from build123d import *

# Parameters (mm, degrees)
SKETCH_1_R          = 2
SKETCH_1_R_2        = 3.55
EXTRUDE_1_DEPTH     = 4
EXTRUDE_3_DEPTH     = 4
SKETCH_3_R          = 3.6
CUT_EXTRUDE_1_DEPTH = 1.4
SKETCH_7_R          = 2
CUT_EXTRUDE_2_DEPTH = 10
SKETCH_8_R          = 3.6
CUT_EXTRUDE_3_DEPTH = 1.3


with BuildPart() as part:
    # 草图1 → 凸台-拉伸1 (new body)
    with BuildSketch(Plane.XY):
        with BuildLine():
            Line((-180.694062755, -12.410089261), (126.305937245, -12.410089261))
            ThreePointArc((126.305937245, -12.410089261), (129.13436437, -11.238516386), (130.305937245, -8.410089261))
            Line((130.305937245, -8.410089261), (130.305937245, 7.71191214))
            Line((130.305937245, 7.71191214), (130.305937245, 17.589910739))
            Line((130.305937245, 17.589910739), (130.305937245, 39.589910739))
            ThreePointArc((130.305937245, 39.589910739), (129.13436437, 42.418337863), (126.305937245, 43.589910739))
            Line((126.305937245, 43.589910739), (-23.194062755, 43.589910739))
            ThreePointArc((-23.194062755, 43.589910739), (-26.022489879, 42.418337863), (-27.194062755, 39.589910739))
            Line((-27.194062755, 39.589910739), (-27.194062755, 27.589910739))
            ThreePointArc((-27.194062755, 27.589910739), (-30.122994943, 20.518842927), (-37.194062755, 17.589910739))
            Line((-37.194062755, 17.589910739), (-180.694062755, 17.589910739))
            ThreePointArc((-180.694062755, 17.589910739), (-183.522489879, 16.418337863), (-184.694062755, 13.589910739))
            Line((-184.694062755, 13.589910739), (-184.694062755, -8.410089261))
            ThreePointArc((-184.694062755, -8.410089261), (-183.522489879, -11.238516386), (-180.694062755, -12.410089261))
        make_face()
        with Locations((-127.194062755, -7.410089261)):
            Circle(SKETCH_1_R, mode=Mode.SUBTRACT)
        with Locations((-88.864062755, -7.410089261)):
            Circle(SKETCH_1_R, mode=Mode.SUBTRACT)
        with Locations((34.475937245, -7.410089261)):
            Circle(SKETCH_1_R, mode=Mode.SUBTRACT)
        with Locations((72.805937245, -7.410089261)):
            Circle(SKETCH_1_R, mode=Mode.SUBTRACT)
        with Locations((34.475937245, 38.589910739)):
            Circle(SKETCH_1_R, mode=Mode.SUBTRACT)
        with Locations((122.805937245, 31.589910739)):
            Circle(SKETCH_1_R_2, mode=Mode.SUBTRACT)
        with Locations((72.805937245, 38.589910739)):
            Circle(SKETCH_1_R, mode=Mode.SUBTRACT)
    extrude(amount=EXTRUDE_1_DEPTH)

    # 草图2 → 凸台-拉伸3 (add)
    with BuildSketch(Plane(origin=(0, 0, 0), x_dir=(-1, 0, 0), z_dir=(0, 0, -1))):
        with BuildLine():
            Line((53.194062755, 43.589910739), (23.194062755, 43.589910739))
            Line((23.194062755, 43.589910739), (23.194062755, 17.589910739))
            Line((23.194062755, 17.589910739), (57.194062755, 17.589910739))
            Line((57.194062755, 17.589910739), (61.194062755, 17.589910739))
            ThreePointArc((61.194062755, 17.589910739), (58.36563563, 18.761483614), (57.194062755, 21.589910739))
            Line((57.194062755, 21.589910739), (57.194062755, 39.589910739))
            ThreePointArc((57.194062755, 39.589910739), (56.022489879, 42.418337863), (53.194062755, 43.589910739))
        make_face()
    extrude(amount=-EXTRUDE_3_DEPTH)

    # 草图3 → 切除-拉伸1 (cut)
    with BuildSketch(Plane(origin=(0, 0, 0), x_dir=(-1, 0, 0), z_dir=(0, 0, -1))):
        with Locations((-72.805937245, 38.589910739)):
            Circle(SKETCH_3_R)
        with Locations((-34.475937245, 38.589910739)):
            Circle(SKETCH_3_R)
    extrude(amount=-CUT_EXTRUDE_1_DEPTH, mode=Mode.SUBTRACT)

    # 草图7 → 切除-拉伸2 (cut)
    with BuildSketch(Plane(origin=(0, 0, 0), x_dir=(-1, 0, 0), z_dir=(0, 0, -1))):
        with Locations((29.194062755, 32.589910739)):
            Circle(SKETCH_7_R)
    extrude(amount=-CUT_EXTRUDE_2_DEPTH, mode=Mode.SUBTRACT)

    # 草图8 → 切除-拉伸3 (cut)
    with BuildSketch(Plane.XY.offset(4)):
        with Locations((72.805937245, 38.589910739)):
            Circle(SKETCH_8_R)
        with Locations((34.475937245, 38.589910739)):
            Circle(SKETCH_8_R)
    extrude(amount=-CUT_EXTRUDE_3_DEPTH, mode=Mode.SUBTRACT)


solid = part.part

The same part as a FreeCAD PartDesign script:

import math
import FreeCAD as App
import Part
import Sketcher
Q = App.Units.Quantity

doc = App.newDocument("Part")
body = doc.addObject("PartDesign::Body", "Body")

# Sketch on XY plane
sketch1 = body.newObject("Sketcher::SketchObject", "Sketch")
sketch1.AttachmentSupport = (doc.getObject("XY_Plane"), [""])
sketch1.MapMode = "FlatFace"
sketch1.addGeometry(Part.LineSegment(App.Vector(-180.694063, -12.410089, 0), App.Vector(126.305937, -12.410089, 0)), False)
sketch1.addGeometry(Part.ArcOfCircle(Part.Circle(App.Vector(126.305937, -8.410089, 0), App.Vector(0, 0, 1), 4), math.radians(-90), math.radians(0)), False)
sketch1.addGeometry(Part.LineSegment(App.Vector(130.305937, -8.410089, 0), App.Vector(130.305937, 39.589911, 0)), False)
sketch1.addGeometry(Part.ArcOfCircle(Part.Circle(App.Vector(126.305937, 39.589911, 0), App.Vector(0, 0, 1), 4), math.radians(0), math.radians(90)), False)
sketch1.addGeometry(Part.LineSegment(App.Vector(126.305937, 43.589911, 0), App.Vector(-23.194063, 43.589911, 0)), False)
sketch1.addGeometry(Part.ArcOfCircle(Part.Circle(App.Vector(-23.194063, 39.589911, 0), App.Vector(0, 0, 1), 4), math.radians(90), math.radians(180)), False)
sketch1.addGeometry(Part.LineSegment(App.Vector(-27.194063, 39.589911, 0), App.Vector(-27.194063, 27.589911, 0)), False)
sketch1.addGeometry(Part.ArcOfCircle(Part.Circle(App.Vector(-37.194063, 27.589911, 0), App.Vector(0, 0, 1), 10), math.radians(-90), math.radians(0)), False)
sketch1.addGeometry(Part.LineSegment(App.Vector(-37.194063, 17.589911, 0), App.Vector(-180.694063, 17.589911, 0)), False)
sketch1.addGeometry(Part.ArcOfCircle(Part.Circle(App.Vector(-180.694063, 13.589911, 0), App.Vector(0, 0, 1), 4), math.radians(90), math.radians(180)), False)
sketch1.addGeometry(Part.LineSegment(App.Vector(-184.694063, 13.589911, 0), App.Vector(-184.694063, -8.410089, 0)), False)
sketch1.addGeometry(Part.ArcOfCircle(Part.Circle(App.Vector(-180.694063, -8.410089, 0), App.Vector(0, 0, 1), 4), math.radians(-180), math.radians(-90)), False)
sketch1.addGeometry(Part.Circle(App.Vector(-127.194063, -7.410089, 0), App.Vector(0, 0, 1), 2), False)
sketch1.addGeometry(Part.Circle(App.Vector(-88.864063, -7.410089, 0), App.Vector(0, 0, 1), 2), False)
sketch1.addGeometry(Part.Circle(App.Vector(34.475937, -7.410089, 0), App.Vector(0, 0, 1), 2), False)
sketch1.addGeometry(Part.Circle(App.Vector(72.805937, -7.410089, 0), App.Vector(0, 0, 1), 2), False)
sketch1.addGeometry(Part.Circle(App.Vector(34.475937, 38.589911, 0), App.Vector(0, 0, 1), 2), False)
sketch1.addGeometry(Part.Circle(App.Vector(122.805937, 31.589911, 0), App.Vector(0, 0, 1), 3.55), False)
sketch1.addGeometry(Part.Circle(App.Vector(72.805937, 38.589911, 0), App.Vector(0, 0, 1), 2), False)
sketch1.addConstraint(Sketcher.Constraint("Tangent", 0, 2, 1, 1))
sketch1.addConstraint(Sketcher.Constraint("Tangent", 1, 2, 2, 1))
sketch1.addConstraint(Sketcher.Constraint("Tangent", 2, 2, 3, 1))
sketch1.addConstraint(Sketcher.Constraint("Tangent", 3, 2, 4, 1))
sketch1.addConstraint(Sketcher.Constraint("Tangent", 4, 2, 5, 1))
sketch1.addConstraint(Sketcher.Constraint("Tangent", 5, 2, 6, 1))
sketch1.addConstraint(Sketcher.Constraint("Tangent", 6, 2, 7, 2))
sketch1.addConstraint(Sketcher.Constraint("Tangent", 7, 1, 8, 1))
sketch1.addConstraint(Sketcher.Constraint("Tangent", 8, 2, 9, 1))
sketch1.addConstraint(Sketcher.Constraint("Tangent", 9, 2, 10, 1))
sketch1.addConstraint(Sketcher.Constraint("Tangent", 10, 2, 11, 1))
sketch1.addConstraint(Sketcher.Constraint("Tangent", 11, 2, 0, 1))
sketch1.addConstraint(Sketcher.Constraint("Horizontal", 0))
sketch1.addConstraint(Sketcher.Constraint("Vertical", 2))
sketch1.addConstraint(Sketcher.Constraint("Horizontal", 4))
sketch1.addConstraint(Sketcher.Constraint("Vertical", 6))
sketch1.addConstraint(Sketcher.Constraint("Horizontal", 8))
sketch1.addConstraint(Sketcher.Constraint("Vertical", 10))
sketch1.addConstraint(Sketcher.Constraint("Equal", 1, 3))
sketch1.addConstraint(Sketcher.Constraint("Equal", 3, 5))
sketch1.addConstraint(Sketcher.Constraint("Equal", 5, 9))
sketch1.addConstraint(Sketcher.Constraint("Equal", 9, 11))
sketch1.addConstraint(Sketcher.Constraint("Equal", 12, 13))
sketch1.addConstraint(Sketcher.Constraint("Equal", 13, 14))
sketch1.addConstraint(Sketcher.Constraint("Equal", 14, 15))
sketch1.addConstraint(Sketcher.Constraint("Equal", 15, 16))
sketch1.addConstraint(Sketcher.Constraint("Equal", 16, 18))
sketch1.addConstraint(Sketcher.Constraint("Horizontal", 12, 3, 13, 3))
sketch1.addConstraint(Sketcher.Constraint("Horizontal", 13, 3, 14, 3))
sketch1.addConstraint(Sketcher.Constraint("Horizontal", 14, 3, 15, 3))
sketch1.addConstraint(Sketcher.Constraint("Horizontal", 16, 3, 18, 3))
sketch1.addConstraint(Sketcher.Constraint("Vertical", 14, 3, 16, 3))
sketch1.addConstraint(Sketcher.Constraint("Vertical", 15, 3, 18, 3))
sketch1.addConstraint(Sketcher.Constraint("Diameter", 12, Q("4 mm")))
sketch1.addConstraint(Sketcher.Constraint("Radius", 1, Q("4 mm")))
sketch1.addConstraint(Sketcher.Constraint("Radius", 7, Q("10 mm")))
sketch1.addConstraint(Sketcher.Constraint("Diameter", 17, Q("7.1 mm")))
sketch1.addConstraint(Sketcher.Constraint("DistanceX", 0, 1, 0, 2, Q("307 mm")))
sketch1.addConstraint(Sketcher.Constraint("DistanceY", 2, 1, 2, 2, Q("48 mm")))
sketch1.addConstraint(Sketcher.Constraint("DistanceY", 6, 2, 6, 1, Q("12 mm")))
sketch1.addConstraint(Sketcher.Constraint("DistanceX", 4, 2, 4, 1, Q("149.5 mm")))
sketch1.addConstraint(Sketcher.Constraint("DistanceY", 11, 3, 12, 3, Q("1 mm")))
sketch1.addConstraint(Sketcher.Constraint("DistanceX", 12, 3, 7, 3, Q("90 mm")))
sketch1.addConstraint(Sketcher.Constraint("DistanceX", 5, 3, 15, 3, Q("96 mm")))
sketch1.addConstraint(Sketcher.Constraint("DistanceY", 14, 3, 16, 3, Q("46 mm")))
sketch1.addConstraint(Sketcher.Constraint("DistanceY", 17, 3, 3, 3, Q("8 mm")))
sketch1.addConstraint(Sketcher.Constraint("DistanceX", 15, 3, 17, 3, Q("50 mm")))
sketch1.addConstraint(Sketcher.Constraint("DistanceX", 12, 3, 13, 3, Q("38.33 mm")))
sketch1.addConstraint(Sketcher.Constraint("DistanceX", 5, 3, 14, 3, Q("57.67 mm")))
sketch1.addConstraint(Sketcher.Constraint("DistanceY", 1, 3, -1, 1, Q("8.410089 mm")))
sketch1.addConstraint(Sketcher.Constraint("DistanceX", -1, 1, 1, 3, Q("126.305937 mm")))
pad1 = body.newObject("PartDesign::Pad", "Pad")
pad1.Profile = sketch1
pad1.Length = 4

# Sketch on XY plane
sketch2 = body.newObject("Sketcher::SketchObject", "Sketch001")
sketch2.AttachmentSupport = (doc.getObject("XY_Plane"), [""])
sketch2.MapMode = "FlatFace"
sketch2.addGeometry(Part.LineSegment(App.Vector(-53.194063, 43.589911, 0), App.Vector(-23.194063, 43.589911, 0)), False)
sketch2.addGeometry(Part.LineSegment(App.Vector(-23.194063, 43.589911, 0), App.Vector(-23.194063, 17.589911, 0)), False)
sketch2.addGeometry(Part.LineSegment(App.Vector(-23.194063, 17.589911, 0), App.Vector(-61.194063, 17.589911, 0)), False)
sketch2.addGeometry(Part.ArcOfCircle(Part.Circle(App.Vector(-61.194063, 21.589911, 0), App.Vector(0, 0, 1), 4), math.radians(-90), math.radians(0)), False)
sketch2.addGeometry(Part.LineSegment(App.Vector(-57.194063, 21.589911, 0), App.Vector(-57.194063, 39.589911, 0)), False)
sketch2.addGeometry(Part.ArcOfCircle(Part.Circle(App.Vector(-53.194063, 39.589911, 0), App.Vector(0, 0, 1), 4), math.radians(90), math.radians(180)), False)
sketch2.addConstraint(Sketcher.Constraint("Coincident", 0, 2, 1, 1))
sketch2.addConstraint(Sketcher.Constraint("Coincident", 1, 2, 2, 1))
sketch2.addConstraint(Sketcher.Constraint("Tangent", 2, 2, 3, 1))
sketch2.addConstraint(Sketcher.Constraint("Tangent", 3, 2, 4, 1))
sketch2.addConstraint(Sketcher.Constraint("Tangent", 4, 2, 5, 2))
sketch2.addConstraint(Sketcher.Constraint("Tangent", 5, 1, 0, 1))
sketch2.addConstraint(Sketcher.Constraint("Horizontal", 0))
sketch2.addConstraint(Sketcher.Constraint("Vertical", 1))
sketch2.addConstraint(Sketcher.Constraint("Horizontal", 2))
sketch2.addConstraint(Sketcher.Constraint("Vertical", 4))
sketch2.addConstraint(Sketcher.Constraint("Equal", 3, 5))
sketch2.addConstraint(Sketcher.Constraint("Radius", 3, Q("4 mm")))
sketch2.addConstraint(Sketcher.Constraint("DistanceX", 0, 1, 0, 2, Q("30 mm")))
sketch2.addConstraint(Sketcher.Constraint("DistanceY", 1, 2, 1, 1, Q("26 mm")))
sketch2.addConstraint(Sketcher.Constraint("DistanceY", -1, 1, 3, 3, Q("21.589911 mm")))
sketch2.addConstraint(Sketcher.Constraint("DistanceX", 3, 3, -1, 1, Q("61.194063 mm")))
pad2 = body.newObject("PartDesign::Pad", "Pad001")
pad2.Profile = sketch2
pad2.Length = 4

# Sketch on XY plane
sketch3 = body.newObject("Sketcher::SketchObject", "Sketch002")
sketch3.AttachmentSupport = (doc.getObject("XY_Plane"), [""])
sketch3.MapMode = "FlatFace"
sketch3.addGeometry(Part.Circle(App.Vector(72.805937, 38.589911, 0), App.Vector(0, 0, 1), 3.6), False)
sketch3.addGeometry(Part.Circle(App.Vector(34.475937, 38.589911, 0), App.Vector(0, 0, 1), 3.6), False)
sketch3.addConstraint(Sketcher.Constraint("Equal", 0, 1))
sketch3.addConstraint(Sketcher.Constraint("Horizontal", 0, 3, 1, 3))
sketch3.addConstraint(Sketcher.Constraint("Diameter", 0, Q("7.2 mm")))
sketch3.addConstraint(Sketcher.Constraint("DistanceX", 1, 3, 0, 3, Q("38.33 mm")))
sketch3.addConstraint(Sketcher.Constraint("DistanceY", -1, 1, 0, 3, Q("38.589911 mm")))
sketch3.addConstraint(Sketcher.Constraint("DistanceX", -1, 1, 0, 3, Q("72.805937 mm")))
pocket1 = body.newObject("PartDesign::Pocket", "Pocket")
pocket1.Profile = sketch3
pocket1.Length = 1.4
pocket1.Reversed = True

# Sketch on XY plane
sketch4 = body.newObject("Sketcher::SketchObject", "Sketch003")
sketch4.AttachmentSupport = (doc.getObject("XY_Plane"), [""])
sketch4.MapMode = "FlatFace"
sketch4.addGeometry(Part.Circle(App.Vector(-29.194063, 32.589911, 0), App.Vector(0, 0, 1), 2), False)
sketch4.addConstraint(Sketcher.Constraint("Diameter", 0, Q("4 mm")))
sketch4.addConstraint(Sketcher.Constraint("DistanceY", -1, 1, 0, 3, Q("32.589911 mm")))
sketch4.addConstraint(Sketcher.Constraint("DistanceX", 0, 3, -1, 1, Q("29.194063 mm")))
pocket2 = body.newObject("PartDesign::Pocket", "Pocket001")
pocket2.Profile = sketch4
pocket2.Length = 10
pocket2.Reversed = True

# Sketch on XY plane
sketch5 = body.newObject("Sketcher::SketchObject", "Sketch004")
sketch5.AttachmentSupport = (doc.getObject("XY_Plane"), [""])
sketch5.MapMode = "FlatFace"
sketch5.AttachmentOffset = App.Placement(App.Vector(0, 0, 4), App.Rotation())
sketch5.addGeometry(Part.Circle(App.Vector(72.805937, 38.589911, 0), App.Vector(0, 0, 1), 3.6), False)
sketch5.addGeometry(Part.Circle(App.Vector(34.475937, 38.589911, 0), App.Vector(0, 0, 1), 3.6), False)
sketch5.addConstraint(Sketcher.Constraint("Equal", 0, 1))
sketch5.addConstraint(Sketcher.Constraint("Horizontal", 0, 3, 1, 3))
sketch5.addConstraint(Sketcher.Constraint("Diameter", 0, Q("7.2 mm")))
sketch5.addConstraint(Sketcher.Constraint("DistanceX", 1, 3, 0, 3, Q("38.33 mm")))
sketch5.addConstraint(Sketcher.Constraint("DistanceY", -1, 1, 0, 3, Q("38.589911 mm")))
sketch5.addConstraint(Sketcher.Constraint("DistanceX", -1, 1, 0, 3, Q("72.805937 mm")))
pocket3 = body.newObject("PartDesign::Pocket", "Pocket002")
pocket3.Profile = sketch5
pocket3.Length = 1.3

doc.recompute()
